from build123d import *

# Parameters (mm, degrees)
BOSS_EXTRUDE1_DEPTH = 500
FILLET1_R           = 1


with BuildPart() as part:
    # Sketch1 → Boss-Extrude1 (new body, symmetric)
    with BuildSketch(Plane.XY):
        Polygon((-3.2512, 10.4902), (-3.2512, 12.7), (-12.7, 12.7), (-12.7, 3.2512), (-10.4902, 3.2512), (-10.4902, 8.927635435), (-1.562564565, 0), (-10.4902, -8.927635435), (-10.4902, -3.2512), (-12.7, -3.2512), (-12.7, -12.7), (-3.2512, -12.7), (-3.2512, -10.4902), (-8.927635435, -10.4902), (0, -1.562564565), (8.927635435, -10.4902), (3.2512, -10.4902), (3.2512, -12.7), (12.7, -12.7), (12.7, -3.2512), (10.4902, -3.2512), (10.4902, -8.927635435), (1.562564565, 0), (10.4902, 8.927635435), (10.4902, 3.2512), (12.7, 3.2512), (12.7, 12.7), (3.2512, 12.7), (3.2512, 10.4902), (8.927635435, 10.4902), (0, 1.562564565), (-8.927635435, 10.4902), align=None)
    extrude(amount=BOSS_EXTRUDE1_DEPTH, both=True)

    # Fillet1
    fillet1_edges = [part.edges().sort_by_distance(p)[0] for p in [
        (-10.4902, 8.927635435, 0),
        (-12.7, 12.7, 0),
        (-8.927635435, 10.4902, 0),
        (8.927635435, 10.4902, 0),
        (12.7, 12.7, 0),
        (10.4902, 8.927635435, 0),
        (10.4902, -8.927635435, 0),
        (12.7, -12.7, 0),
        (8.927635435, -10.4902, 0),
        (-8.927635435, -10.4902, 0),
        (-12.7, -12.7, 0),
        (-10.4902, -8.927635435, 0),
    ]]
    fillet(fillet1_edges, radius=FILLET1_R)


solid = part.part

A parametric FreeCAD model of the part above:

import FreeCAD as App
import Part
import Sketcher

V = App.Vector
Q = App.Units.Quantity


def edges_at(feature, points):
    """Names of the edges that pass closest to the given points."""
    edges = feature.Shape.Edges
    near = lambda p: min(range(len(edges)), key=lambda i: edges[i].distToShape(Part.Vertex(*p))[0])
    return sorted({f"Edge{near(p) + 1}" for p in points})

doc = App.newDocument("Part")
body = doc.addObject("PartDesign::Body", "Body")

sketch1 = body.newObject("Sketcher::SketchObject", "Sketch")
sketch1.AttachmentSupport = (doc.getObject("XY_Plane"), [""])
sketch1.MapMode = "FlatFace"
sketch1.addGeometry(Part.LineSegment(V(-3.2512, 10.4902, 0), V(-3.2512, 12.7, 0)), False)
sketch1.addGeometry(Part.LineSegment(V(-3.2512, 12.7, 0), V(-12.7, 12.7, 0)), False)
sketch1.addGeometry(Part.LineSegment(V(-12.7, 12.7, 0), V(-12.7, 3.2512, 0)), False)
sketch1.addGeometry(Part.LineSegment(V(-12.7, 3.2512, 0), V(-10.4902, 3.2512, 0)), False)
sketch1.addGeometry(Part.LineSegment(V(-10.4902, 3.2512, 0), V(-10.4902, 8.927635, 0)), False)
sketch1.addGeometry(Part.LineSegment(V(-10.4902, 8.927635, 0), V(-1.562565, 0, 0)), False)
sketch1.addGeometry(Part.LineSegment(V(-1.562565, 0, 0), V(-10.4902, -8.927635, 0)), False)
sketch1.addGeometry(Part.LineSegment(V(-10.4902, -8.927635, 0), V(-10.4902, -3.2512, 0)), False)
sketch1.addGeometry(Part.LineSegment(V(-10.4902, -3.2512, 0), V(-12.7, -3.2512, 0)), False)
sketch1.addGeometry(Part.LineSegment(V(-12.7, -3.2512, 0), V(-12.7, -12.7, 0)), False)
sketch1.addGeometry(Part.LineSegment(V(-12.7, -12.7, 0), V(-3.2512, -12.7, 0)), False)
sketch1.addGeometry(Part.LineSegment(V(-3.2512, -12.7, 0), V(-3.2512, -10.4902, 0)), False)
sketch1.addGeometry(Part.LineSegment(V(-3.2512, -10.4902, 0), V(-8.927635, -10.4902, 0)), False)
sketch1.addGeometry(Part.LineSegment(V(-8.927635, -10.4902, 0), V(0, -1.562565, 0)), False)
sketch1.addGeometry(Part.LineSegment(V(0, -1.562565, 0), V(8.927635, -10.4902, 0)), False)
sketch1.addGeometry(Part.LineSegment(V(8.927635, -10.4902, 0), V(3.2512, -10.4902, 0)), False)
sketch1.addGeometry(Part.LineSegment(V(3.2512, -10.4902, 0), V(3.2512, -12.7, 0)), False)
sketch1.addGeometry(Part.LineSegment(V(3.2512, -12.7, 0), V(12.7, -12.7, 0)), False)
sketch1.addGeometry(Part.LineSegment(V(12.7, -12.7, 0), V(12.7, -3.2512, 0)), False)
sketch1.addGeometry(Part.LineSegment(V(12.7, -3.2512, 0), V(10.4902, -3.2512, 0)), False)
sketch1.addGeometry(Part.LineSegment(V(10.4902, -3.2512, 0), V(10.4902, -8.927635, 0)), False)
sketch1.addGeometry(Part.LineSegment(V(10.4902, -8.927635, 0), V(1.562565, 0, 0)), False)
sketch1.addGeometry(Part.LineSegment(V(1.562565, 0, 0), V(10.4902, 8.927635, 0)), False)
sketch1.addGeometry(Part.LineSegment(V(10.4902, 8.927635, 0), V(10.4902, 3.2512, 0)), False)
sketch1.addGeometry(Part.LineSegment(V(10.4902, 3.2512, 0), V(12.7, 3.2512, 0)), False)
sketch1.addGeometry(Part.LineSegment(V(12.7, 3.2512, 0), V(12.7, 12.7, 0)), False)
sketch1.addGeometry(Part.LineSegment(V(12.7, 12.7, 0), V(3.2512, 12.7, 0)), False)
sketch1.addGeometry(Part.LineSegment(V(3.2512, 12.7, 0), V(3.2512, 10.4902, 0)), False)
sketch1.addGeometry(Part.LineSegment(V(3.2512, 10.4902, 0), V(8.927635, 10.4902, 0)), False)
sketch1.addGeometry(Part.LineSegment(V(8.927635, 10.4902, 0), V(0, 1.562565, 0)), False)
sketch1.addGeometry(Part.LineSegment(V(0, 1.562565, 0), V(-8.927635, 10.4902, 0)), False)
sketch1.addGeometry(Part.LineSegment(V(-8.927635, 10.4902, 0), V(-3.2512, 10.4902, 0)), False)
sketch1.addConstraint(Sketcher.Constraint("Coincident", 0, 2, 1, 1))
sketch1.addConstraint(Sketcher.Constraint("Coincident", 1, 2, 2, 1))
sketch1.addConstraint(Sketcher.Constraint("Coincident", 2, 2, 3, 1))
sketch1.addConstraint(Sketcher.Constraint("Coincident", 3, 2, 4, 1))
sketch1.addConstraint(Sketcher.Constraint("Coincident", 4, 2, 5, 1))
sketch1.addConstraint(Sketcher.Constraint("Coincident", 5, 2, 6, 1))
sketch1.addConstraint(Sketcher.Constraint("Coincident", 6, 2, 7, 1))
sketch1.addConstraint(Sketcher.Constraint("Coincident", 7, 2, 8, 1))
sketch1.addConstraint(Sketcher.Constraint("Coincident", 8, 2, 9, 1))
sketch1.addConstraint(Sketcher.Constraint("Coincident", 9, 2, 10, 1))
sketch1.addConstraint(Sketcher.Constraint("Coincident", 10, 2, 11, 1))
sketch1.addConstraint(Sketcher.Constraint("Coincident", 11, 2, 12, 1))
sketch1.addConstraint(Sketcher.Constraint("Coincident", 12, 2, 13, 1))
sketch1.addConstraint(Sketcher.Constraint("Coincident", 13, 2, 14, 1))
sketch1.addConstraint(Sketcher.Constraint("Coincident", 14, 2, 15, 1))
sketch1.addConstraint(Sketcher.Constraint("Coincident", 15, 2, 16, 1))
sketch1.addConstraint(Sketcher.Constraint("Coincident", 16, 2, 17, 1))
sketch1.addConstraint(Sketcher.Constraint("Coincident", 17, 2, 18, 1))
sketch1.addConstraint(Sketcher.Constraint("Coincident", 18, 2, 19, 1))
sketch1.addConstraint(Sketcher.Constraint("Coincident", 19, 2, 20, 1))
sketch1.addConstraint(Sketcher.Constraint("Coincident", 20, 2, 21, 1))
sketch1.addConstraint(Sketcher.Constraint("Coincident", 21, 2, 22, 1))
sketch1.addConstraint(Sketcher.Constraint("Coincident", 22, 2, 23, 1))
sketch1.addConstraint(Sketcher.Constraint("Coincident", 23, 2, 24, 1))
sketch1.addConstraint(Sketcher.Constraint("Coincident", 24, 2, 25, 1))
sketch1.addConstraint(Sketcher.Constraint("Coincident", 25, 2, 26, 1))
sketch1.addConstraint(Sketcher.Constraint("Coincident", 26, 2, 27, 1))
sketch1.addConstraint(Sketcher.Constraint("Coincident", 27, 2, 28, 1))
sketch1.addConstraint(Sketcher.Constraint("Coincident", 28, 2, 29, 1))
sketch1.addConstraint(Sketcher.Constraint("Coincident", 29, 2, 30, 1))
sketch1.addConstraint(Sketcher.Constraint("Coincident", 30, 2, 31, 1))
sketch1.addConstraint(Sketcher.Constraint("Coincident", 31, 2, 0, 1))
sketch1.addConstraint(Sketcher.Constraint("Vertical", 0))
sketch1.addConstraint(Sketcher.Constraint("Horizontal", 1))
sketch1.addConstraint(Sketcher.Constraint("Vertical", 2))
sketch1.addConstraint(Sketcher.Constraint("Horizontal", 3))
sketch1.addConstraint(Sketcher.Constraint("Vertical", 4))
sketch1.addConstraint(Sketcher.Constraint("Vertical", 7))
sketch1.addConstraint(Sketcher.Constraint("Horizontal", 8))
sketch1.addConstraint(Sketcher.Constraint("Vertical", 9))
sketch1.addConstraint(Sketcher.Constraint("Horizontal", 10))
sketch1.addConstraint(Sketcher.Constraint("Vertical", 11))
sketch1.addConstraint(Sketcher.Constraint("Horizontal", 12))
sketch1.addConstraint(Sketcher.Constraint("Horizontal", 15))
sketch1.addConstraint(Sketcher.Constraint("Vertical", 16))
sketch1.addConstraint(Sketcher.Constraint("Horizontal", 17))
sketch1.addConstraint(Sketcher.Constraint("Vertical", 18))
sketch1.addConstraint(Sketcher.Constraint("Horizontal", 19))
sketch1.addConstraint(Sketcher.Constraint("Vertical", 20))
sketch1.addConstraint(Sketcher.Constraint("Vertical", 23))
sketch1.addConstraint(Sketcher.Constraint("Horizontal", 24))
sketch1.addConstraint(Sketcher.Constraint("Vertical", 25))
sketch1.addConstraint(Sketcher.Constraint("Horizontal", 26))
sketch1.addConstraint(Sketcher.Constraint("Vertical", 27))
sketch1.addConstraint(Sketcher.Constraint("Horizontal", 28))
sketch1.addConstraint(Sketcher.Constraint("Horizontal", 31))
sketch1.addConstraint(Sketcher.Constraint("Symmetric", 0, 2, 16, 2, -1, 1))
sketch1.addConstraint(Sketcher.Constraint("Symmetric", 2, 2, 18, 2, -1, 1))
sketch1.addConstraint(Sketcher.Constraint("Symmetric", 4, 2, 20, 2, -1, 1))
sketch1.addConstraint(Sketcher.Constraint("Symmetric", 5, 2, 21, 2, -1, 1))
sketch1.addConstraint(Sketcher.Constraint("Symmetric", 6, 2, 22, 2, -1, 1))
sketch1.addConstraint(Sketcher.Constraint("Symmetric", 8, 2, 24, 2, -1, 1))
sketch1.addConstraint(Sketcher.Constraint("Symmetric", 10, 2, 26, 2, -1, 1))
sketch1.addConstraint(Sketcher.Constraint("Symmetric", 12, 2, 28, 2, -1, 1))
sketch1.addConstraint(Sketcher.Constraint("Symmetric", 13, 2, 29, 2, -1, 1))
sketch1.addConstraint(Sketcher.Constraint("Symmetric", 14, 2, 30, 2, -1, 1))
sketch1.addConstraint(Sketcher.Constraint("Symmetric", 12, 2, 14, 2, -2))
sketch1.addConstraint(Sketcher.Constraint("Symmetric", 10, 2, 16, 2, -2))
sketch1.addConstraint(Sketcher.Constraint("Symmetric", 8, 2, 18, 2, -2))
sketch1.addConstraint(Sketcher.Constraint("Symmetric", 6, 2, 20, 2, -2))
sketch1.addConstraint(Sketcher.Constraint("PointOnObject", 5, 2, -1))
sketch1.addConstraint(Sketcher.Constraint("PointOnObject", 13, 2, -2))
sketch1.addConstraint(Sketcher.Constraint("Perpendicular", 5, 6))
sketch1.addConstraint(Sketcher.Constraint("Parallel", 6, 13))
sketch1.addConstraint(Sketcher.Constraint("Equal", 24, 0))
sketch1.addConstraint(Sketcher.Constraint("Equal", 26, 2))
sketch1.addConstraint(Sketcher.Constraint("Equal", 31, 4))
sketch1.addConstraint(Sketcher.Constraint("Equal", 6, 13))
sketch1.addConstraint(Sketcher.Constraint("DistanceY", -1, 1, 0, 2, Q("12.7 mm")))
sketch1.addConstraint(Sketcher.Constraint("DistanceX", 1, 2, 1, 1, Q("9.4488 mm")))
sketch1.addConstraint(Sketcher.Constraint("DistanceX", 3, 1, 3, 2, Q("2.2098 mm")))
sketch1.addConstraint(Sketcher.Constraint("DistanceX", 12, 2, 12, 1, Q("5.676435 mm")))
pad1 = body.newObject("PartDesign::Pad", "Pad")
pad1.Profile = sketch1
pad1.Length = 1000
pad1.Midplane = True
doc.recompute()

fillet = body.newObject("PartDesign::Fillet", "Fillet")
fillet.Base = (pad1, edges_at(pad1, [
    (-10.49, 8.928, 0),
    (-12.7, 12.7, 0),
    (-8.928, 10.49, 0),
    (8.928, 10.49, 0),
    (12.7, 12.7, 0),
    (10.49, 8.928, 0),
    (10.49, -8.928, 0),
    (12.7, -12.7, 0),
    (8.928, -10.49, 0),
    (-8.928, -10.49, 0),
    (-12.7, -12.7, 0),
    (-10.49, -8.928, 0),
]))
fillet.Radius = 1

doc.recompute()
